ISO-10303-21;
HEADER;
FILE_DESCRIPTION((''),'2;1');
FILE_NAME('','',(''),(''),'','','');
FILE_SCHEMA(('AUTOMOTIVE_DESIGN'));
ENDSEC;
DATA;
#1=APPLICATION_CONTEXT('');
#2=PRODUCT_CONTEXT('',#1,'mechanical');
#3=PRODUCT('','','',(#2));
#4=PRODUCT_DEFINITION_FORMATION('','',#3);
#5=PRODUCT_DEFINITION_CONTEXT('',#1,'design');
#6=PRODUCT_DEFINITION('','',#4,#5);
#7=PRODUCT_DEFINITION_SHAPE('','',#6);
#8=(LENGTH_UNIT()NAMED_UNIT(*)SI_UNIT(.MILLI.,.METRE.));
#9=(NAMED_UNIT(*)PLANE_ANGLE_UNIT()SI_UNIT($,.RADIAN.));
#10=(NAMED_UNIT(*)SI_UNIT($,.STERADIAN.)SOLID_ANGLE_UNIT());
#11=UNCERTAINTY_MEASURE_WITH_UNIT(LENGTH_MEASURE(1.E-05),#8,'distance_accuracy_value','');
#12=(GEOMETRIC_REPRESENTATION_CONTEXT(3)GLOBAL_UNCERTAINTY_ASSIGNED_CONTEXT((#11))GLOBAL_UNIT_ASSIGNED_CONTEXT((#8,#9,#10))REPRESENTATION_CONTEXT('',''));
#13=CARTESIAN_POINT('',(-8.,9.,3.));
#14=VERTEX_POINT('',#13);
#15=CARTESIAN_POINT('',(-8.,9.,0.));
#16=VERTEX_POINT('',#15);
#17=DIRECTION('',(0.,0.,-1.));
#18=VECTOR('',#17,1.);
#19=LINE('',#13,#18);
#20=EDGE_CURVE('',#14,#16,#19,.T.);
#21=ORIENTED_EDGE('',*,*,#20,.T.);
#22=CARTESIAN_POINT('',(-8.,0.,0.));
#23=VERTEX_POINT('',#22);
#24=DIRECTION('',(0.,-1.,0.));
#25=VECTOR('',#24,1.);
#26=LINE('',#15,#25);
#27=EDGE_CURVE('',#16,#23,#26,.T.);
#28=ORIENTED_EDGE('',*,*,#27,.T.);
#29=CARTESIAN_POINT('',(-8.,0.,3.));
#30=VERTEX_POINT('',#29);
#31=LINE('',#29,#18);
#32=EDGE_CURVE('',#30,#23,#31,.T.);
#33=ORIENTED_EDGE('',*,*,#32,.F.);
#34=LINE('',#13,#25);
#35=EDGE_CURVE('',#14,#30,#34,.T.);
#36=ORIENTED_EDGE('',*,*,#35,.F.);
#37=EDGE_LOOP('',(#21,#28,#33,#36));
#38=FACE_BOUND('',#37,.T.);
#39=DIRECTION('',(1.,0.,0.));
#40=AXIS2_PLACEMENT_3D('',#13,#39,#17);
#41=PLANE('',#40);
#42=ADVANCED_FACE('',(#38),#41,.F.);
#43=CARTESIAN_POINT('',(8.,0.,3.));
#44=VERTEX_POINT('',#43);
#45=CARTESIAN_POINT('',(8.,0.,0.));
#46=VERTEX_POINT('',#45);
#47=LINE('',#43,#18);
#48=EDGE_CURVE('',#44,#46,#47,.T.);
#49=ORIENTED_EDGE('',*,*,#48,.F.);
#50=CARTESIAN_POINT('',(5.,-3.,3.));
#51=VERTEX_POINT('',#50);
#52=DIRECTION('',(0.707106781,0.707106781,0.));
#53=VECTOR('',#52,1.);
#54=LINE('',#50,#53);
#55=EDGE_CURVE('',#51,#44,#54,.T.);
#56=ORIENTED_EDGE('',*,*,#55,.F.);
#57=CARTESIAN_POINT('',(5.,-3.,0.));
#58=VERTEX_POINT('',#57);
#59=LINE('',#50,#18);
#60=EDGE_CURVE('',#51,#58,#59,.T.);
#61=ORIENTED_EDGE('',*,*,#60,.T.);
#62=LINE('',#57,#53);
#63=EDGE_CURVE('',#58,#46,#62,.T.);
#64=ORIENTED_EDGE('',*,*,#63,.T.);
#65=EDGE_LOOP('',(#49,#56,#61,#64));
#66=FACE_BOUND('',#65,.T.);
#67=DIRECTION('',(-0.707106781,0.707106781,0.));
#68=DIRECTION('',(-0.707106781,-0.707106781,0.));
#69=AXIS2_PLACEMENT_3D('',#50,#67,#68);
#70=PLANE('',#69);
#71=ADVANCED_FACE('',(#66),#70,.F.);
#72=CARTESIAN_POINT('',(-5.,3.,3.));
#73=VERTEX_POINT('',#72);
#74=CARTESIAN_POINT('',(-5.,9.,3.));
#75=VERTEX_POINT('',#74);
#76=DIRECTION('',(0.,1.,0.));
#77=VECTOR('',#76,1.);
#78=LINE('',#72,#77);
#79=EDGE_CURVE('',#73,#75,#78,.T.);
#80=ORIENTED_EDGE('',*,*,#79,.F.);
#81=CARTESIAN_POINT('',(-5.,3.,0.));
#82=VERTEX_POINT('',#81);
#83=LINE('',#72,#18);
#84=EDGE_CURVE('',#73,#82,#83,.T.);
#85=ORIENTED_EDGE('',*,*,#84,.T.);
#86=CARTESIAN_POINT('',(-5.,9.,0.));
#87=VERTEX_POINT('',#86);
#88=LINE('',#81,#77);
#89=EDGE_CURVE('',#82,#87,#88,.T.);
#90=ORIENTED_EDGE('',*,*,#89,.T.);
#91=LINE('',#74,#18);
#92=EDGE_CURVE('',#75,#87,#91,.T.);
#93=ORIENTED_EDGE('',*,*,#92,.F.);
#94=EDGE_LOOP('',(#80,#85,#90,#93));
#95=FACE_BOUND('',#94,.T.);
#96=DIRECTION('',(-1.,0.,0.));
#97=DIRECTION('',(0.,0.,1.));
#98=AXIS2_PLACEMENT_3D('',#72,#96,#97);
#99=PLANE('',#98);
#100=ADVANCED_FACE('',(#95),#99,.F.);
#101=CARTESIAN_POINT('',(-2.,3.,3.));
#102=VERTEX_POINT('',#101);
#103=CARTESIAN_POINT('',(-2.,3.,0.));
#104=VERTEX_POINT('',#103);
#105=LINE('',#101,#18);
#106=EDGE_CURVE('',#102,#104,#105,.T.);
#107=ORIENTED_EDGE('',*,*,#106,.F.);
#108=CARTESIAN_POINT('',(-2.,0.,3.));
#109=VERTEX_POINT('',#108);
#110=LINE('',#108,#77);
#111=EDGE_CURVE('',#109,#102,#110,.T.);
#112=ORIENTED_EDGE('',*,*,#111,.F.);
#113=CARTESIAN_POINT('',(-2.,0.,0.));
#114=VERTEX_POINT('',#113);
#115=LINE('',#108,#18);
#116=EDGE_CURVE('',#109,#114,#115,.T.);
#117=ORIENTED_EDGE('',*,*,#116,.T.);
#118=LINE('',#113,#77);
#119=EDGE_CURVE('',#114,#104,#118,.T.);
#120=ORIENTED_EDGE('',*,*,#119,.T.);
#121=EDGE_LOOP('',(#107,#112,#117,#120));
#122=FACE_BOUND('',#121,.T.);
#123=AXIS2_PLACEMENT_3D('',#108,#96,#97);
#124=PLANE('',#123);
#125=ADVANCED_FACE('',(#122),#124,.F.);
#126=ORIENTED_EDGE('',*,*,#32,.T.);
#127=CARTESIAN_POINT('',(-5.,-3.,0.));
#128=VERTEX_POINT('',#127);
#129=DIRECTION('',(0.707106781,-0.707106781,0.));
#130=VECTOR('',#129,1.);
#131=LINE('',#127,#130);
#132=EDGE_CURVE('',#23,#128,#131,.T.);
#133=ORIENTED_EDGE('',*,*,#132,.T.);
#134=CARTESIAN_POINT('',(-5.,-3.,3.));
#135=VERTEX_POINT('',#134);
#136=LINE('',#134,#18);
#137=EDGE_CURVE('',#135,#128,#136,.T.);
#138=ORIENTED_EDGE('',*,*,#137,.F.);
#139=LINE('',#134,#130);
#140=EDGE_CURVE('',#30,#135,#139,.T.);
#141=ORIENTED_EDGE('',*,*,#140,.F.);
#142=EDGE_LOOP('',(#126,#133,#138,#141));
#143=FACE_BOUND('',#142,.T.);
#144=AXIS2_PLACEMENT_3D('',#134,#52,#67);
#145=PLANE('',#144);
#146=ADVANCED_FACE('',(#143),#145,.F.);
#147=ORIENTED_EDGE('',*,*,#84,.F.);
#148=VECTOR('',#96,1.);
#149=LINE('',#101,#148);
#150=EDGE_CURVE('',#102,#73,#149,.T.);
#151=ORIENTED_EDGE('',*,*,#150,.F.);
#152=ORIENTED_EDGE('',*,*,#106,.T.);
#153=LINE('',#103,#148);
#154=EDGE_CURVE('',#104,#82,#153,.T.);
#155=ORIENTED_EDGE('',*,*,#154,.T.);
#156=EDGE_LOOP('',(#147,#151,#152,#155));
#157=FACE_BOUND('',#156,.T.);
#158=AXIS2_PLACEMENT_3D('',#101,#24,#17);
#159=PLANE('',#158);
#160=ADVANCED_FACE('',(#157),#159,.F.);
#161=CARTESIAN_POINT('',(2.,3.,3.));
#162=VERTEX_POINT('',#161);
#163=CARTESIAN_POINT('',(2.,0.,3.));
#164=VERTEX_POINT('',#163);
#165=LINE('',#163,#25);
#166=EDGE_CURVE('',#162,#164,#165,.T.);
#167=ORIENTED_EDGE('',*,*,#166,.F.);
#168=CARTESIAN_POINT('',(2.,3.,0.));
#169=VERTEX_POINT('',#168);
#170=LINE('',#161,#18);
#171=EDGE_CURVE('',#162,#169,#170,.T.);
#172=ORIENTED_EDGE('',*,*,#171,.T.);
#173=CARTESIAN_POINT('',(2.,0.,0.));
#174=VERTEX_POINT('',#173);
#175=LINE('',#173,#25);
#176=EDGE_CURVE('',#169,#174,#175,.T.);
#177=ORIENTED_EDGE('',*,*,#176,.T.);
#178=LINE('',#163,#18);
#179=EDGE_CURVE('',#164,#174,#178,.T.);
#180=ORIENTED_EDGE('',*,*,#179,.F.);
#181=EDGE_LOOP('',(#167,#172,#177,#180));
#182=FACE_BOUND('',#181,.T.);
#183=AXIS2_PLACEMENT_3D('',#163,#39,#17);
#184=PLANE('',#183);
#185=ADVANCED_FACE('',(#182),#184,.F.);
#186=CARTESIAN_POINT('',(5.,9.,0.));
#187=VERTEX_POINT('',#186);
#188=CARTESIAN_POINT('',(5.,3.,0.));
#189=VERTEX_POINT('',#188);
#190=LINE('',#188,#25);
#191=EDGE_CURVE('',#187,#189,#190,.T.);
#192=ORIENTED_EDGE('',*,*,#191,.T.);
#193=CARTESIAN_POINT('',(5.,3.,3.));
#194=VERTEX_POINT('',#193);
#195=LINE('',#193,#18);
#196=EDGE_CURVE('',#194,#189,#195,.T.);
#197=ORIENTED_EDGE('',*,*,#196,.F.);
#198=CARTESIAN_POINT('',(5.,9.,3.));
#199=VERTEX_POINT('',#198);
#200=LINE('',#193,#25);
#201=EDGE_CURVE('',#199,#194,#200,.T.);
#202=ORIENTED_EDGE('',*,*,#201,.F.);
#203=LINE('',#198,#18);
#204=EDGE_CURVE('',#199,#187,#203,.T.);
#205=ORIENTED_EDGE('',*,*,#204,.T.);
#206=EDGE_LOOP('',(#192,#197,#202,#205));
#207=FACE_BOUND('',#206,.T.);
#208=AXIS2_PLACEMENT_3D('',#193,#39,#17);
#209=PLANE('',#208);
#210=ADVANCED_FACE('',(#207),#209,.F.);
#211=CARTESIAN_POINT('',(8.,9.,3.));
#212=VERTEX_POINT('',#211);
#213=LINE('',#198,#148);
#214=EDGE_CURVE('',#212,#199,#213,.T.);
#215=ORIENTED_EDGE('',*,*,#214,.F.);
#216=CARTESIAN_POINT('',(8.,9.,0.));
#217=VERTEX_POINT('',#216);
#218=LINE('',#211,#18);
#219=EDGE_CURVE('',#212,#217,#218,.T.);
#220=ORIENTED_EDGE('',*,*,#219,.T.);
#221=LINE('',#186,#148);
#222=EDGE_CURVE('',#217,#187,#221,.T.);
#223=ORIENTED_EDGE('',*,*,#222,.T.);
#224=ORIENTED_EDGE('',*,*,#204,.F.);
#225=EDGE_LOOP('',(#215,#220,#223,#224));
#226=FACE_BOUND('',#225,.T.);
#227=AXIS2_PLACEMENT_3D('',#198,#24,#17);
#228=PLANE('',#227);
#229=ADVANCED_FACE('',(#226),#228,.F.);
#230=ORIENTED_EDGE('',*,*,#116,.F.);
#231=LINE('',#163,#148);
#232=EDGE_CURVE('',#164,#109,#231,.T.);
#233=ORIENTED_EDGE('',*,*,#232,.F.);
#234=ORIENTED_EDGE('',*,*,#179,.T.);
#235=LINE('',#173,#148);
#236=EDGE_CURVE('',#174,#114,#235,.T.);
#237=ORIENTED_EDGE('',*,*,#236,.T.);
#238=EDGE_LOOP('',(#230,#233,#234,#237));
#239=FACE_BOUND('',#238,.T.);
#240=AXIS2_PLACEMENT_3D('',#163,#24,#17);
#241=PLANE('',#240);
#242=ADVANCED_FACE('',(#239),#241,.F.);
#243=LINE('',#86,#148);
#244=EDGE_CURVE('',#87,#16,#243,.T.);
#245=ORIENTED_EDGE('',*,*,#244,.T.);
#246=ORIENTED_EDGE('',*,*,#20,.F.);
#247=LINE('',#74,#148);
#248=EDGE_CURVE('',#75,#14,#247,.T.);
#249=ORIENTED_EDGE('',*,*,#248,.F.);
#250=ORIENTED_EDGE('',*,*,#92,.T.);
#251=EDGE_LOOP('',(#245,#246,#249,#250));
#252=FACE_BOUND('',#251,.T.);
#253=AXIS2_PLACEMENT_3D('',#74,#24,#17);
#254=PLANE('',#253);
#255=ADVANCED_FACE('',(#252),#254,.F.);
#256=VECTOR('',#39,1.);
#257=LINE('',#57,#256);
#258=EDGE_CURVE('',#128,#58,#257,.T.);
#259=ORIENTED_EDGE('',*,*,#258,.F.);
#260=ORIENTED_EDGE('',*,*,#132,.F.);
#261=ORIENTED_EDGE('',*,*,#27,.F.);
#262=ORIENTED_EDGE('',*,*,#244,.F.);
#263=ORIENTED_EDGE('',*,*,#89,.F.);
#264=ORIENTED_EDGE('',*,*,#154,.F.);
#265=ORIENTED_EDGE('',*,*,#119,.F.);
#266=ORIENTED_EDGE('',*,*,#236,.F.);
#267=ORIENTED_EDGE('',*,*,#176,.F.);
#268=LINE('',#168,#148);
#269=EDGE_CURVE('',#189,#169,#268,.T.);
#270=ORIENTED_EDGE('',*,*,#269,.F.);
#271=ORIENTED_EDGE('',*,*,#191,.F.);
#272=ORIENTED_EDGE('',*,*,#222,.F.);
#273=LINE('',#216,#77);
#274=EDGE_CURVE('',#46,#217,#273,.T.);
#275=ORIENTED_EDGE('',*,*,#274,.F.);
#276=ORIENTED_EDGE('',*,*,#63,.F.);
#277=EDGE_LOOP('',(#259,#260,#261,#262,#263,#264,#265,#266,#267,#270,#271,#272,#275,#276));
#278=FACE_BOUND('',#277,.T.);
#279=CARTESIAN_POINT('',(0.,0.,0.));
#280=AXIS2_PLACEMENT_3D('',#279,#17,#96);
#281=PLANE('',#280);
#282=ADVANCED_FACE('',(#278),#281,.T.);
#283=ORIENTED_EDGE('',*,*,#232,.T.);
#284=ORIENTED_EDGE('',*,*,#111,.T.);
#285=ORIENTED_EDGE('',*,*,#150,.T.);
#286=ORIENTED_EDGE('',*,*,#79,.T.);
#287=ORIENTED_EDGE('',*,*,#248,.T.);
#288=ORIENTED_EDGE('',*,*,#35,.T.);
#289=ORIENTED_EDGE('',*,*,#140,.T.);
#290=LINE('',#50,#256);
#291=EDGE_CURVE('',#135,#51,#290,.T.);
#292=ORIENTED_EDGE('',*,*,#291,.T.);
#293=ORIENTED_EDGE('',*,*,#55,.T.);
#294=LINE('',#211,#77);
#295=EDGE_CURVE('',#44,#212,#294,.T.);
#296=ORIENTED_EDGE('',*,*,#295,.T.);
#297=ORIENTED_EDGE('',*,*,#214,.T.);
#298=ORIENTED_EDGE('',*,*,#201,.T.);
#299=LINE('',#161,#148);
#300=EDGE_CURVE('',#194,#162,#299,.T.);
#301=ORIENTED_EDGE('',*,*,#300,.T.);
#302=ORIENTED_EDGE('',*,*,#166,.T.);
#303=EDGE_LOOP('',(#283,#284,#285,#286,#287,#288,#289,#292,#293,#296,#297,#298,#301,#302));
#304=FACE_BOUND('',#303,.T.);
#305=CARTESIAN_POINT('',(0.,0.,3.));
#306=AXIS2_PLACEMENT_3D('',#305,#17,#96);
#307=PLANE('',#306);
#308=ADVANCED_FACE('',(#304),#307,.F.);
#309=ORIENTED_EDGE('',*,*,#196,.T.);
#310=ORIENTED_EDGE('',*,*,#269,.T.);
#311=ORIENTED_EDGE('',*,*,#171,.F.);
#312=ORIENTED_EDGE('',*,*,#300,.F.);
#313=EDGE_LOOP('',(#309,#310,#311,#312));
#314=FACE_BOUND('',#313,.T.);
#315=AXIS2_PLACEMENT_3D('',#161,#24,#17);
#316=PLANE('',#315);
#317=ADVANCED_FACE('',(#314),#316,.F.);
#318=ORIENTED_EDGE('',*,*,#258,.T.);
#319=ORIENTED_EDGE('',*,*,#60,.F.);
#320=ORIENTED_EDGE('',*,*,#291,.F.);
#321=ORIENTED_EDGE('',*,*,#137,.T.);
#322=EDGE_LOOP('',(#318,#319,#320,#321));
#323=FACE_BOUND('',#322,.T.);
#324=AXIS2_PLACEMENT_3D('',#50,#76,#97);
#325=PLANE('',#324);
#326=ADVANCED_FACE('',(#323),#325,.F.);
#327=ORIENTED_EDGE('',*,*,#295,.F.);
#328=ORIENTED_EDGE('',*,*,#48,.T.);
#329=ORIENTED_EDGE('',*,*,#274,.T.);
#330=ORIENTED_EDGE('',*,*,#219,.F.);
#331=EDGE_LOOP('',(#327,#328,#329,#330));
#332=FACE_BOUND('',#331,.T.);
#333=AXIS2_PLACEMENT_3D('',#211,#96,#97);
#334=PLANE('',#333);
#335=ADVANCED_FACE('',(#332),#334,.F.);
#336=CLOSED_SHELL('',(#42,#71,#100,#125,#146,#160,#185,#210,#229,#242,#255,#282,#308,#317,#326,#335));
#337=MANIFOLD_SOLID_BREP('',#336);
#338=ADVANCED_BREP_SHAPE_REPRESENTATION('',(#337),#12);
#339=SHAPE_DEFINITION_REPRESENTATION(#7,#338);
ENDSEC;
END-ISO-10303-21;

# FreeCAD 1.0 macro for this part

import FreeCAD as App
import Part
import Sketcher

V = App.Vector


def add_polygon(sketch, points):
    """Adds a closed chain of lines whose ends are joined by coincident constraints."""
    first, n = sketch.GeometryCount, len(points)
    for a, b in zip(points, points[1:] + points[:1]):
        sketch.addGeometry(Part.LineSegment(App.Vector(*a, 0), App.Vector(*b, 0)), False)
    for i in range(n):
        sketch.addConstraint(Sketcher.Constraint("Coincident", first + i, 2, first + (i + 1) % n, 1))

doc = App.newDocument("Part")
body = doc.addObject("PartDesign::Body", "Body")

# Sketch on XY plane
sketch1 = doc.addObject("Sketcher::SketchObject", "Sketch")
body.addObject(sketch1)
sketch1.AttachmentSupport = (doc.XY_Plane, [""])
sketch1.MapMode = "FlatFace"
add_polygon(sketch1, [(2, 0), (-2, 0), (-2, 3), (-5, 3), (-5, 9), (-8, 9), (-8, 0), (-5, -3), (5, -3), (8, 0), (8, 9), (5, 9), (5, 3), (2, 3)])  # lines 0-13
sketch1.addConstraint([
    Sketcher.Constraint("Horizontal", 0),
    Sketcher.Constraint("Vertical", 1),
    Sketcher.Constraint("Horizontal", 2),
    Sketcher.Constraint("Vertical", 3),
    Sketcher.Constraint("Horizontal", 4),
    Sketcher.Constraint("Vertical", 5),
    Sketcher.Constraint("Horizontal", 7),
    Sketcher.Constraint("Vertical", 9),
    Sketcher.Constraint("Horizontal", 10),
    Sketcher.Constraint("Vertical", 11),
    Sketcher.Constraint("Horizontal", 12),
    Sketcher.Constraint("Vertical", 13),
    Sketcher.Constraint("Symmetric", 2, 2, 7, 2, -1, 1),
    Sketcher.Constraint("Symmetric", 5, 2, 8, 2, -1, 1),
    Sketcher.Constraint("Symmetric", 6, 2, 11, 2, -1, 1),
    Sketcher.Constraint("Symmetric", 0, 2, 13, 2, -1, 1),
    Sketcher.Constraint("Symmetric", 3, 2, 10, 2, -2),
    Sketcher.Constraint("PointOnObject", 5, 2, -1),
    Sketcher.Constraint("Perpendicular", 6, 8),
    Sketcher.Constraint("Equal", 2, 4),
    Sketcher.Constraint("DistanceX", 0, 2, 0, 1, 4.0),
    Sketcher.Constraint("DistanceX", 2, 2, 2, 1, 3.0),
    Sketcher.Constraint("DistanceY", 3, 1, 3, 2, 6.0),
])
pad1 = doc.addObject("PartDesign::Pad", "Pad")
body.addObject(pad1)
pad1.Profile = sketch1
pad1.Length = 3

doc.recompute()
